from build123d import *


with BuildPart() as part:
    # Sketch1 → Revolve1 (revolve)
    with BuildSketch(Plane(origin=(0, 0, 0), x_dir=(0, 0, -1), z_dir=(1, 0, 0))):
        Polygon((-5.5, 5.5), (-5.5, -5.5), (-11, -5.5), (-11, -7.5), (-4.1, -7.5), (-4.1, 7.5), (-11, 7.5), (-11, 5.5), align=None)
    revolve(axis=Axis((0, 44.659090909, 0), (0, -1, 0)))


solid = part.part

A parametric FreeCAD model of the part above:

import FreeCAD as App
import Part
import Sketcher


def add_polygon(sketch, points):
    """Adds a closed chain of lines whose ends are joined by coincident constraints."""
    first, n = sketch.GeometryCount, len(points)
    for a, b in zip(points, points[1:] + points[:1]):
        sketch.addGeometry(Part.LineSegment(App.Vector(*a, 0), App.Vector(*b, 0)), False)
    for i in range(n):
        sketch.addConstraint(Sketcher.Constraint("Coincident", first + i, 2, first + (i + 1) % n, 1))

doc = App.newDocument("Part")
params = doc.addObject("Spreadsheet::Sheet", "Params")
for row, (alias, value) in enumerate([
    ("sketch1_width", "11 mm"),
    ("sketch1_width2", "2 mm"),
    ("sketch1_height", "5.5 mm"),
    ("sketch1_height2", "6.9 mm"),
    ("revolution_angle", "360 deg"),
], start=1):
    params.set(f"A{row}", alias)
    params.set(f"B{row}", "=" + value)
    params.setAlias(f"B{row}", alias)

body = doc.addObject("PartDesign::Body", "Body")

# Sketch on YZ plane
sketch1 = body.newObject("Sketcher::SketchObject", "Sketch")
sketch1.AttachmentSupport = (doc.getObject("YZ_Plane"), [""])
sketch1.MapMode = "FlatFace"
add_polygon(sketch1, [(5.5, 5.5), (-5.5, 5.5), (-5.5, 11), (-7.5, 11), (-7.5, 4.1), (7.5, 4.1), (7.5, 11), (5.5, 11)])  # lines 0-7
sketch1.addConstraint([
    Sketcher.Constraint("Horizontal", 0),
    Sketcher.Constraint("Vertical", 1),
    Sketcher.Constraint("Horizontal", 2),
    Sketcher.Constraint("Vertical", 3),
    Sketcher.Constraint("Horizontal", 4),
    Sketcher.Constraint("Vertical", 5),
    Sketcher.Constraint("Horizontal", 6),
    Sketcher.Constraint("Vertical", 7),
    Sketcher.Constraint("Symmetric", 2, 2, 5, 2, -2),
    Sketcher.Constraint("Equal", 2, 6),
    Sketcher.Constraint("DistanceX", 0, 2, 0, 1, 11.0),
    Sketcher.Constraint("DistanceX", 2, 2, 2, 1, 2.0),
    Sketcher.Constraint("DistanceY", 1, 1, 1, 2, 5.5),
    Sketcher.Constraint("DistanceY", 3, 2, 3, 1, 6.9),
    Sketcher.Constraint("DistanceY", -1, 1, 1, 2, 11.0),
])
sketch1.setExpression("Constraints[18]", "Params.sketch1_width")
sketch1.setExpression("Constraints[19]", "Params.sketch1_width2")
sketch1.setExpression("Constraints[20]", "Params.sketch1_height")
sketch1.setExpression("Constraints[21]", "Params.sketch1_height2")
revolution = body.newObject("PartDesign::Revolution", "Revolution")
revolution.Profile = sketch1
revolution.ReferenceAxis = (sketch1, ["H_Axis"])
revolution.setExpression("Angle", "Params.revolution_angle")

doc.recompute()
